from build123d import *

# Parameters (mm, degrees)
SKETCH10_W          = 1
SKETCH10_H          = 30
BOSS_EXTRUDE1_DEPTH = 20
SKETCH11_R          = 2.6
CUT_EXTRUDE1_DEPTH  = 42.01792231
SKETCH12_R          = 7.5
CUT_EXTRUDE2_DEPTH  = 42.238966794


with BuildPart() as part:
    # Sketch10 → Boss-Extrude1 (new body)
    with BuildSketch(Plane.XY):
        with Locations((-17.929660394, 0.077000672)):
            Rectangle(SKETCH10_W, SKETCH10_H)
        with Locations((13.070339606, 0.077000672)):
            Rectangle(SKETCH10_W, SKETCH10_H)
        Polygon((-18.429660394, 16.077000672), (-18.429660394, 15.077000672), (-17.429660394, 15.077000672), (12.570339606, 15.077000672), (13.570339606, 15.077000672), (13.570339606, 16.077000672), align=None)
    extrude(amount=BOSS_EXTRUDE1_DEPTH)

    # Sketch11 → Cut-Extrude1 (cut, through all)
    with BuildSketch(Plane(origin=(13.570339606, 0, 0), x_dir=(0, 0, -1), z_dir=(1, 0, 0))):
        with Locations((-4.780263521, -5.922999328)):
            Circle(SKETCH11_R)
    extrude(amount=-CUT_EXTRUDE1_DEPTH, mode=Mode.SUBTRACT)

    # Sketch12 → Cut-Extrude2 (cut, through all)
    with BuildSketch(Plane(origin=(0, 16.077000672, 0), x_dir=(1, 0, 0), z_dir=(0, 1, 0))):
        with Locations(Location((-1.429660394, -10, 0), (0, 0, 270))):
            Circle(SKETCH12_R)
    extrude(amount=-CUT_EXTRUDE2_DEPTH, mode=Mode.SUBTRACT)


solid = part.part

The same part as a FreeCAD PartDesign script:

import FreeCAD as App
import Part
import Sketcher
from FreeCAD import Vector


def add_polygon(sketch, points):
    """Adds a closed chain of lines whose ends are joined by coincident constraints."""
    first, n = sketch.GeometryCount, len(points)
    for a, b in zip(points, points[1:] + points[:1]):
        sketch.addGeometry(Part.LineSegment(App.Vector(*a, 0), App.Vector(*b, 0)), False)
    for i in range(n):
        sketch.addConstraint(Sketcher.Constraint("Coincident", first + i, 2, first + (i + 1) % n, 1))

doc = App.newDocument("Part")
body = doc.addObject("PartDesign::Body", "Body")

# Sketch on XY plane
sketch1 = body.newObject("Sketcher::SketchObject", "Sketch")
sketch1.AttachmentSupport = (doc.getObject("XY_Plane"), [""])
sketch1.MapMode = "FlatFace"
add_polygon(sketch1, [(-18.42966, -14.922999), (-17.42966, -14.922999), (-17.42966, 15.077001), (12.57034, 15.077001), (12.57034, -14.922999), (13.57034, -14.922999), (13.57034, 16.077001), (-18.42966, 16.077001)])  # lines 0-7
sketch1.addConstraint([
    Sketcher.Constraint("Horizontal", 0),
    Sketcher.Constraint("Vertical", 1),
    Sketcher.Constraint("Horizontal", 2),
    Sketcher.Constraint("Vertical", 3),
    Sketcher.Constraint("Horizontal", 4),
    Sketcher.Constraint("Vertical", 5),
    Sketcher.Constraint("Horizontal", 6),
    Sketcher.Constraint("Vertical", 7),
    Sketcher.Constraint("Horizontal", 0, 2, 3, 2),
    Sketcher.Constraint("Equal", 0, 4),
    Sketcher.Constraint("Equal", 2, 1),
    Sketcher.Constraint("DistanceX", 0, 1, 0, 2, 1.0),
    Sketcher.Constraint("DistanceX", 2, 1, 2, 2, 30.0),
    Sketcher.Constraint("DistanceY", 5, 1, 5, 2, 31.0),
    Sketcher.Constraint("DistanceY", 0, 2, -1, 1, 14.922999),
    Sketcher.Constraint("DistanceX", 0, 2, -1, 1, 17.42966),
])
pad1 = body.newObject("PartDesign::Pad", "Pad")
pad1.Profile = sketch1
pad1.Length = 20

# Sketch on YZ plane
sketch2 = body.newObject("Sketcher::SketchObject", "Sketch001")
sketch2.AttachmentSupport = (doc.getObject("YZ_Plane"), [""])
sketch2.MapMode = "FlatFace"
sketch2.AttachmentOffset = App.Placement(Vector(0, 0, 13.57034), App.Rotation())
sketch2.addGeometry(Part.Circle(Vector(-5.922999, 4.780264, 0), Vector(0, 0, 1), 2.6), False)
sketch2.addConstraint([
    Sketcher.Constraint("Diameter", 0, 5.2),
    Sketcher.Constraint("DistanceX", 0, 3, -1, 1, 5.922999),
    Sketcher.Constraint("DistanceY", -1, 1, 0, 3, 4.780264),
])
pocket1 = body.newObject("PartDesign::Pocket", "Pocket")
pocket1.Profile = sketch2
pocket1.Type = "ThroughAll"

# Sketch on XZ plane
sketch3 = body.newObject("Sketcher::SketchObject", "Sketch002")
sketch3.AttachmentSupport = (doc.getObject("XZ_Plane"), [""])
sketch3.MapMode = "FlatFace"
sketch3.AttachmentOffset = App.Placement(Vector(0, 0, -16.077001), App.Rotation())
sketch3.addGeometry(Part.Circle(Vector(-1.42966, 10, 0), Vector(0, 0, 1), 7.5), False)
sketch3.addConstraint([
    Sketcher.Constraint("Diameter", 0, 15.0),
    Sketcher.Constraint("DistanceY", -1, 1, 0, 3, 10.0),
    Sketcher.Constraint("DistanceX", 0, 3, -1, 1, 1.42966),
])
pocket2 = body.newObject("PartDesign::Pocket", "Pocket001")
pocket2.Profile = sketch3
pocket2.Type = "ThroughAll"
pocket2.Reversed = True

doc.recompute()
